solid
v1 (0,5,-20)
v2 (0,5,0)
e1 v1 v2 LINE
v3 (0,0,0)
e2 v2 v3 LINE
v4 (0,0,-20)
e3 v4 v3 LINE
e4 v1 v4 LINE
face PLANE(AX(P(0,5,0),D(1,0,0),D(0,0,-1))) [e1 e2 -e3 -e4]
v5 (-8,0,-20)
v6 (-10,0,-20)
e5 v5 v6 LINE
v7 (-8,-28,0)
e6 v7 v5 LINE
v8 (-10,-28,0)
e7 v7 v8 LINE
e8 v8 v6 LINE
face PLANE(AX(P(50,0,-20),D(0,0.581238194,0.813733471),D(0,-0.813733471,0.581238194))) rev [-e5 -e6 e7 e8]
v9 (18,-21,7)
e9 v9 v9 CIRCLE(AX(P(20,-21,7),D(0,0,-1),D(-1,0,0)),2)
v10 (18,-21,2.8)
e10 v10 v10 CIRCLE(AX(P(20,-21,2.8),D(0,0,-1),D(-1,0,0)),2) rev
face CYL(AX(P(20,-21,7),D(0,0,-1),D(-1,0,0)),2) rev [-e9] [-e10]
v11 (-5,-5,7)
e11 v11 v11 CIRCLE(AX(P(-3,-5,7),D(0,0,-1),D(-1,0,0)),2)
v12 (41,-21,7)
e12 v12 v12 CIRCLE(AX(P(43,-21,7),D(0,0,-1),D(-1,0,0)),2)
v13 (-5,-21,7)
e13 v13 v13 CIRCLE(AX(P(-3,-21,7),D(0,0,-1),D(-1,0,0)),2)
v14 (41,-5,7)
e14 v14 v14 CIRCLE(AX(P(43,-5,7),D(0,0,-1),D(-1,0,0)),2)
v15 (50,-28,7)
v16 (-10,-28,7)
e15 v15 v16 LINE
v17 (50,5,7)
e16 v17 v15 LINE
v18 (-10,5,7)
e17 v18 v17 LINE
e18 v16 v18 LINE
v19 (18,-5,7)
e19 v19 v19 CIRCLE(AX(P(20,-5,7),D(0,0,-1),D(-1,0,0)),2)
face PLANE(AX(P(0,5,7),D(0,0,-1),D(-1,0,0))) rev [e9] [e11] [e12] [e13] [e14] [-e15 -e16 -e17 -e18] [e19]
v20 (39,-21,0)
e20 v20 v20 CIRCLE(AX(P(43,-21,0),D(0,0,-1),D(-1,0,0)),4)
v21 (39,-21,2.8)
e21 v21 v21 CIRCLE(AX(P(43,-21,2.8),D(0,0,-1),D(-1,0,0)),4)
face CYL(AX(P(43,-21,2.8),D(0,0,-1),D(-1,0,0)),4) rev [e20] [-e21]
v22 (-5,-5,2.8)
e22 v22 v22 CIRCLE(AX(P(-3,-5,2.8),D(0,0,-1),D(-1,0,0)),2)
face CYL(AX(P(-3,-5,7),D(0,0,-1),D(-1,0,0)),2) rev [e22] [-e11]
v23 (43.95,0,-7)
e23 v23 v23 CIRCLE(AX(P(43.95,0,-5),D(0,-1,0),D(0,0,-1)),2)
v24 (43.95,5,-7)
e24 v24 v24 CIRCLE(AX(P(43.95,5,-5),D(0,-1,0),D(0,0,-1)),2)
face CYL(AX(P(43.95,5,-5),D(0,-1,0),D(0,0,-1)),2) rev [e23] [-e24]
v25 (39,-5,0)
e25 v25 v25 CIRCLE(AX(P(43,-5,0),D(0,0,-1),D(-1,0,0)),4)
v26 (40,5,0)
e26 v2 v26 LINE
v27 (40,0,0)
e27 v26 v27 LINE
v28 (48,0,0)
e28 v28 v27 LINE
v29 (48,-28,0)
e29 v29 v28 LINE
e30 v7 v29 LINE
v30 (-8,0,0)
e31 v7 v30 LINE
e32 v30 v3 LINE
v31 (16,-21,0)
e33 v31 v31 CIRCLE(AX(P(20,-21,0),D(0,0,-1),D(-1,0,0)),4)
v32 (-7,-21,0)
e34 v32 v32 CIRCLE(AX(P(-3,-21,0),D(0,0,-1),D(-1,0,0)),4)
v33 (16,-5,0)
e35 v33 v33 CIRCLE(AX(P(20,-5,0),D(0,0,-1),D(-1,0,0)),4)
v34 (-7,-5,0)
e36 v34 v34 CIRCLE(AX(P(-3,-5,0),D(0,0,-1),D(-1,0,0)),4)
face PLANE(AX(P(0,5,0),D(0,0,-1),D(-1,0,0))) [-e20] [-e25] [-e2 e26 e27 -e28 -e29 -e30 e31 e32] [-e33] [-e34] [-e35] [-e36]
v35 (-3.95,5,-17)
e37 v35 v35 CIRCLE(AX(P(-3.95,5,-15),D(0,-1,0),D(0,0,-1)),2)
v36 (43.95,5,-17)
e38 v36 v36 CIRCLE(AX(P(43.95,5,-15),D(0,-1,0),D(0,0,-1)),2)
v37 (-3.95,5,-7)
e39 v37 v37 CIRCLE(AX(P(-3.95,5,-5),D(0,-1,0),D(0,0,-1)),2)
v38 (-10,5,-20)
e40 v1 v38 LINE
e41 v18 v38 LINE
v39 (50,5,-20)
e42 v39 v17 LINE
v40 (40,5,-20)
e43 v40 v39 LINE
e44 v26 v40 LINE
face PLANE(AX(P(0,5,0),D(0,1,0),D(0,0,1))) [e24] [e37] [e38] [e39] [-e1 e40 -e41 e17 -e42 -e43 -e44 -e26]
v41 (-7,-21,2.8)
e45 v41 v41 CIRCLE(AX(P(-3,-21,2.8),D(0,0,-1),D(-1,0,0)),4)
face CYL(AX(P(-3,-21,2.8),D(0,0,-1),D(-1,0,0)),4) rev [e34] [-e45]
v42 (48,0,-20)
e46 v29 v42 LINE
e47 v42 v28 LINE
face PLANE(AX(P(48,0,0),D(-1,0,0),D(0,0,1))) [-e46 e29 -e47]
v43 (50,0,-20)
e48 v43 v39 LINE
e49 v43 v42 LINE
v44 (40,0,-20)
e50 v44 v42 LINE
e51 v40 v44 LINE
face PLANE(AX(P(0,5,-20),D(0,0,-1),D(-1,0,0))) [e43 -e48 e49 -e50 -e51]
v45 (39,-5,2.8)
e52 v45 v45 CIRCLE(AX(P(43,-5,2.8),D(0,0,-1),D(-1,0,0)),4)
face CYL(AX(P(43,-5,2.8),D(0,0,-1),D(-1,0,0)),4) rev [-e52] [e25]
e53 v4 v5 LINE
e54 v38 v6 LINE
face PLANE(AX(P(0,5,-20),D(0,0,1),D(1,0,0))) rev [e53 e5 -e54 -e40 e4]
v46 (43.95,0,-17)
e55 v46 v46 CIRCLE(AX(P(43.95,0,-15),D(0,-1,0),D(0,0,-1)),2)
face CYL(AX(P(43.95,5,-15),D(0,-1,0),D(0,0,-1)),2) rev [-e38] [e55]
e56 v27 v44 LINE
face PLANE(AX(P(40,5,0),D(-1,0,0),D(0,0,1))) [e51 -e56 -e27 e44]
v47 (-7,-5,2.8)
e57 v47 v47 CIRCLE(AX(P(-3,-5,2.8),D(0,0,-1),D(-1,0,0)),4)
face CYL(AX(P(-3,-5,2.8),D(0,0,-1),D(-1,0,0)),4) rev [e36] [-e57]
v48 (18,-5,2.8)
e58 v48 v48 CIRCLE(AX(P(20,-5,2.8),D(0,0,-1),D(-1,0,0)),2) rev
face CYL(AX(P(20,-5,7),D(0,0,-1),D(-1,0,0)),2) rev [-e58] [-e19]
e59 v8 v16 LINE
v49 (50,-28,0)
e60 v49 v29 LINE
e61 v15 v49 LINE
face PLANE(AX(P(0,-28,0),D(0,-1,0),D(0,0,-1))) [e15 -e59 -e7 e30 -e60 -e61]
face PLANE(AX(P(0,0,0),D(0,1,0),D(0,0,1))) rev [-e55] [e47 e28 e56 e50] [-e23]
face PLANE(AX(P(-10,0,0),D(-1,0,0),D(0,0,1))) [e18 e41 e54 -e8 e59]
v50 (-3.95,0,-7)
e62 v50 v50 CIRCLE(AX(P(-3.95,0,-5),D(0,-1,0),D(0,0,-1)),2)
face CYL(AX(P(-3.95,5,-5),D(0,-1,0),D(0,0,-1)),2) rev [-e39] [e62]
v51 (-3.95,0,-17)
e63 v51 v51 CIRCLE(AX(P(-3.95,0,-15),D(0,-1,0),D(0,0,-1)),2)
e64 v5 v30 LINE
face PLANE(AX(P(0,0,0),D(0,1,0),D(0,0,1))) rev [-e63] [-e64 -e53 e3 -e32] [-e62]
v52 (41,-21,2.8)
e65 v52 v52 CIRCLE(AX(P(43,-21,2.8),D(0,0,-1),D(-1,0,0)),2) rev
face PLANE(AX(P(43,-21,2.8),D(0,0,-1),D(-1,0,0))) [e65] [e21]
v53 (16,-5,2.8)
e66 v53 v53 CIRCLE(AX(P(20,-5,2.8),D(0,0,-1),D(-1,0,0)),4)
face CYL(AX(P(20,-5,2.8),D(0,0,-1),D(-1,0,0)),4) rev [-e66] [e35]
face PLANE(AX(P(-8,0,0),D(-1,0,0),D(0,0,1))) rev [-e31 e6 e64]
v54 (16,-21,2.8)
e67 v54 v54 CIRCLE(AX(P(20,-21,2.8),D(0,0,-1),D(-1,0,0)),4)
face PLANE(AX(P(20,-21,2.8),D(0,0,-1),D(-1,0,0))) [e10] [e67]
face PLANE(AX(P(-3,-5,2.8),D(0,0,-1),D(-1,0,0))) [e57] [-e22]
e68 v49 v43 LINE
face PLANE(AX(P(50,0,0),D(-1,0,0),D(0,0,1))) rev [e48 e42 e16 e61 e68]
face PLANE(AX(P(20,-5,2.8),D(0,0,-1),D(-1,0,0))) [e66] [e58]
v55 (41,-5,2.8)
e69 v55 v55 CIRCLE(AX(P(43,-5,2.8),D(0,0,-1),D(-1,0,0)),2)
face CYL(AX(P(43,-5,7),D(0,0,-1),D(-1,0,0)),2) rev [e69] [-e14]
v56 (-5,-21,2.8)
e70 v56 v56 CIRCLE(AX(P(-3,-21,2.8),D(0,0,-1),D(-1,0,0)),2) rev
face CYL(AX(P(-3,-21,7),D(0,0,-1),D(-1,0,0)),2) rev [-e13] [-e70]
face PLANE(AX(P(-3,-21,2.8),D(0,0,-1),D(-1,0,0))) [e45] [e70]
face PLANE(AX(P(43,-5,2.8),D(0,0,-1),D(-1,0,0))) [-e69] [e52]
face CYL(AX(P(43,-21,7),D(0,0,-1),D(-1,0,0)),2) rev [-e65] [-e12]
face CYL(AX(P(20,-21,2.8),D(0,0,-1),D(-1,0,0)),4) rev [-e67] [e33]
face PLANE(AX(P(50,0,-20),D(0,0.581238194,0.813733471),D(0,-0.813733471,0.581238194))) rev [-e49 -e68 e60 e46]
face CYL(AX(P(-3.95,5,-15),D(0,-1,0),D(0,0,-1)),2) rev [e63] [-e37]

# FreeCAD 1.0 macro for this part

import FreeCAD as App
import Part
import Sketcher
from FreeCAD import Vector


def add_polygon(sketch, points):
    """Adds a closed chain of lines whose ends are joined by coincident constraints."""
    first, n = sketch.GeometryCount, len(points)
    for a, b in zip(points, points[1:] + points[:1]):
        sketch.addGeometry(Part.LineSegment(App.Vector(*a, 0), App.Vector(*b, 0)), False)
    for i in range(n):
        sketch.addConstraint(Sketcher.Constraint("Coincident", first + i, 2, first + (i + 1) % n, 1))

doc = App.newDocument("Part")
body = doc.addObject("PartDesign::Body", "Body")

# Sketch on XZ plane
sketch1 = body.newObject("Sketcher::SketchObject", "Sketch")
sketch1.AttachmentSupport = (doc.getObject("XZ_Plane"), [""])
sketch1.MapMode = "FlatFace"
add_polygon(sketch1, [(-8, -20), (-8, 20), (4, 20), (4, 7), (17, 7), (17, 20), (29, 20), (29, 7), (48, 7), (48, -20), (40, -20), (40, 0), (0, 0), (0, -20)])  # lines 0-13
sketch1.addConstraint([
    Sketcher.Constraint("Vertical", 0),
    Sketcher.Constraint("Horizontal", 1),
    Sketcher.Constraint("Vertical", 2),
    Sketcher.Constraint("Horizontal", 3),
    Sketcher.Constraint("Vertical", 4),
    Sketcher.Constraint("Horizontal", 5),
    Sketcher.Constraint("Vertical", 6),
    Sketcher.Constraint("Horizontal", 7),
    Sketcher.Constraint("Vertical", 8),
    Sketcher.Constraint("Horizontal", 9),
    Sketcher.Constraint("Vertical", 10),
    Sketcher.Constraint("Horizontal", 11),
    Sketcher.Constraint("Vertical", 12),
    Sketcher.Constraint("Horizontal", 13),
    Sketcher.Constraint("Coincident", 11, 2, -1, 1),
    Sketcher.Constraint("Horizontal", 1, 2, 4, 2),
    Sketcher.Constraint("Horizontal", 3, 2, 6, 2),
    Sketcher.Constraint("Horizontal", 9, 2, 12, 2),
    Sketcher.Constraint("Equal", 1, 5),
    Sketcher.Constraint("Equal", 9, 13),
    Sketcher.Constraint("DistanceX", 9, 2, 9, 1, 8.0),
    Sketcher.Constraint("DistanceX", 11, 2, 11, 1, 40.0),
    Sketcher.Constraint("DistanceY", 8, 2, 8, 1, 27.0),
    Sketcher.Constraint("DistanceY", 10, 1, 10, 2, 20.0),
    Sketcher.Constraint("DistanceX", 3, 1, 3, 2, 13.1),
    Sketcher.Constraint("DistanceX", 7, 1, 7, 2, 19.4),
    Sketcher.Constraint("DistanceY", 0, 1, 0, 2, 39.66),
])
pad1 = body.newObject("PartDesign::Pad", "Pad")
pad1.Profile = sketch1
pad1.Length = 5
pad1.Reversed = True

# Sketch on XZ plane
sketch2 = body.newObject("Sketcher::SketchObject", "Sketch001")
sketch2.AttachmentSupport = (doc.getObject("XZ_Plane"), [""])
sketch2.MapMode = "FlatFace"
add_polygon(sketch2, [(4, 20), (-8, 20), (-8, 0), (29, 0), (29, 20), (17, 20), (17, 7), (4, 7)])  # lines 0-7
sketch2.addConstraint([
    Sketcher.Constraint("Horizontal", 0),
    Sketcher.Constraint("Vertical", 1),
    Sketcher.Constraint("Horizontal", 2),
    Sketcher.Constraint("Vertical", 3),
    Sketcher.Constraint("Horizontal", 4),
    Sketcher.Constraint("Vertical", 5),
    Sketcher.Constraint("Horizontal", 6),
    Sketcher.Constraint("Vertical", 7),
    Sketcher.Constraint("PointOnObject", 1, 2, -1),
    Sketcher.Constraint("Horizontal", 0, 2, 3, 2),
    Sketcher.Constraint("Equal", 0, 4),
    Sketcher.Constraint("DistanceX", 2, 1, 2, 2, 36.6),
    Sketcher.Constraint("DistanceX", 6, 2, 6, 1, 13.1),
    Sketcher.Constraint("DistanceX", 0, 2, -1, 1, 8.0),
    Sketcher.Constraint("DistanceY", -1, 1, 5, 2, 7.0),
    Sketcher.Constraint("DistanceY", 1, 2, 1, 1, 19.66),
])
pad2 = body.newObject("PartDesign::Pad", "Pad001")
pad2.Profile = sketch2
pad2.Length = 28

# Sketch on XZ plane
sketch3 = body.newObject("Sketcher::SketchObject", "Sketch002")
sketch3.AttachmentSupport = (doc.getObject("XZ_Plane"), [""])
sketch3.MapMode = "FlatFace"
sketch3.AttachmentOffset = App.Placement(Vector(0, 0, 28), App.Rotation())
add_polygon(sketch3, [(-8, 20), (-8, 7), (-2, 7), (-2, 20)])  # lines 0-3
add_polygon(sketch3, [(23, 20), (23, 7), (29, 7), (29, 20)])  # lines 4-7
sketch3.addConstraint([
    Sketcher.Constraint("Vertical", 0),
    Sketcher.Constraint("Horizontal", 1),
    Sketcher.Constraint("Vertical", 2),
    Sketcher.Constraint("Horizontal", 3),
    Sketcher.Constraint("Vertical", 4),
    Sketcher.Constraint("Horizontal", 5),
    Sketcher.Constraint("Vertical", 6),
    Sketcher.Constraint("Horizontal", 7),
    Sketcher.Constraint("Horizontal", 1, 2, 4, 2),
    Sketcher.Constraint("Horizontal", 3, 2, 6, 2),
    Sketcher.Constraint("Equal", 3, 5),
    Sketcher.Constraint("DistanceX", 0, 2, -1, 1, 8.0),
    Sketcher.Constraint("DistanceY", -1, 1, 0, 2, 7.0),
    Sketcher.Constraint("DistanceX", 1, 1, 1, 2, 5.75),
    Sketcher.Constraint("DistanceY", 0, 2, 0, 1, 12.66),
    Sketcher.Constraint("DistanceX", -1, 1, 5, 2, 28.6),
])
pocket1 = body.newObject("PartDesign::Pocket", "Pocket")
pocket1.Profile = sketch3
pocket1.Type = "ThroughAll"

# Sketch on YZ plane
sketch4 = body.newObject("Sketcher::SketchObject", "Sketch003")
sketch4.AttachmentSupport = (doc.getObject("YZ_Plane"), [""])
sketch4.MapMode = "FlatFace"
sketch4.AttachmentOffset = App.Placement(Vector(0, 0, -2.25), App.Rotation())
sketch4.addGeometry([
    Part.Circle(Vector(-2, 13.3, 0), Vector(0, 0, 1), 2),
    Part.Circle(Vector(-21, 13.3, 0), Vector(0, 0, 1), 2),
    Part.Circle(Vector(-11.5, 13.3, 0), Vector(0, 0, 1), 2),
], False)
sketch4.addConstraint([
    Sketcher.Constraint("Equal", 0, 1),
    Sketcher.Constraint("Equal", 1, 2),
    Sketcher.Constraint("Horizontal", 0, 3, 1, 3),
    Sketcher.Constraint("Horizontal", 1, 3, 2, 3),
    Sketcher.Constraint("Diameter", 0, 4.0),
    Sketcher.Constraint("DistanceX", 0, 3, -1, 1, 2.0),
    Sketcher.Constraint("DistanceX", 1, 3, -1, 1, 21.0),
    Sketcher.Constraint("DistanceX", 2, 3, -1, 1, 11.5),
    Sketcher.Constraint("DistanceY", -1, 1, 0, 3, 13.33),
])
pocket2 = body.newObject("PartDesign::Pocket", "Pocket001")
pocket2.Profile = sketch4
pocket2.Type = "ThroughAll"
pocket2.Reversed = True

# Sketch on XZ plane
sketch5 = body.newObject("Sketcher::SketchObject", "Sketch004")
sketch5.AttachmentSupport = (doc.getObject("XZ_Plane"), [""])
sketch5.MapMode = "FlatFace"
sketch5.addGeometry([
    Part.Circle(Vector(44, -5, 0), Vector(0, 0, 1), 2),
    Part.Circle(Vector(44, -15, 0), Vector(0, 0, 1), 2),
    Part.Circle(Vector(-4, -5, 0), Vector(0, 0, 1), 2),
    Part.Circle(Vector(-4, -15, 0), Vector(0, 0, 1), 2),
], False)
sketch5.addConstraint([
    Sketcher.Constraint("Equal", 0, 1),
    Sketcher.Constraint("Equal", 1, 2),
    Sketcher.Constraint("Equal", 2, 3),
    Sketcher.Constraint("Horizontal", 0, 3, 2, 3),
    Sketcher.Constraint("Horizontal", 1, 3, 3, 3),
    Sketcher.Constraint("Vertical", 0, 3, 1, 3),
    Sketcher.Constraint("Vertical", 2, 3, 3, 3),
    Sketcher.Constraint("Diameter", 0, 4.0),
    Sketcher.Constraint("DistanceY", 0, 3, -1, 1, 5.0),
    Sketcher.Constraint("DistanceY", 1, 3, -1, 1, 15.0),
    Sketcher.Constraint("DistanceX", 2, 3, 0, 3, 47.9),
    Sketcher.Constraint("DistanceX", -1, 1, 0, 3, 43.95),
])
pocket3 = body.newObject("PartDesign::Pocket", "Pocket002")
pocket3.Profile = sketch5
pocket3.Type = "ThroughAll"

# Sketch on YZ plane
sketch6 = body.newObject("Sketcher::SketchObject", "Sketch005")
sketch6.AttachmentSupport = (doc.getObject("YZ_Plane"), [""])
sketch6.MapMode = "FlatFace"
sketch6.AttachmentOffset = App.Placement(Vector(0, 0, 28.6), App.Rotation())
add_polygon(sketch6, [(0, 7), (-28, 7), (-28, 0), (0, 0)])  # lines 0-3
sketch6.addConstraint([
    Sketcher.Constraint("Horizontal", 0),
    Sketcher.Constraint("Vertical", 1),
    Sketcher.Constraint("Horizontal", 2),
    Sketcher.Constraint("Vertical", 3),
    Sketcher.Constraint("Coincident", 2, 2, -1, 1),
    Sketcher.Constraint("DistanceX", 0, 2, 0, 1, 28.0),
    Sketcher.Constraint("DistanceY", 1, 2, 1, 1, 7.0),
])
pad3 = body.newObject("PartDesign::Pad", "Pad002")
pad3.Profile = sketch6
pad3.Length = 19.4

# Sketch on YZ plane
sketch7 = body.newObject("Sketcher::SketchObject", "Sketch006")
sketch7.AttachmentSupport = (doc.getObject("YZ_Plane"), [""])
sketch7.MapMode = "FlatFace"
sketch7.AttachmentOffset = App.Placement(Vector(0, 0, 48), App.Rotation())
add_polygon(sketch7, [(5, 7), (-28, 7), (-28, -20), (5, -20)])  # lines 0-3
sketch7.addConstraint([
    Sketcher.Constraint("Horizontal", 0),
    Sketcher.Constraint("Vertical", 1),
    Sketcher.Constraint("Horizontal", 2),
    Sketcher.Constraint("Vertical", 3),
    Sketcher.Constraint("DistanceX", 0, 2, 0, 1, 33.0),
    Sketcher.Constraint("DistanceY", 1, 2, 1, 1, 27.0),
    Sketcher.Constraint("DistanceX", 0, 2, -1, 1, 28.0),
    Sketcher.Constraint("DistanceY", -1, 1, 0, 2, 7.0),
])
pad4 = body.newObject("PartDesign::Pad", "Pad003")
pad4.Profile = sketch7
pad4.Length = 2

# Sketch on YZ plane
sketch8 = body.newObject("Sketcher::SketchObject", "Sketch007")
sketch8.AttachmentSupport = (doc.getObject("YZ_Plane"), [""])
sketch8.MapMode = "FlatFace"
sketch8.AttachmentOffset = App.Placement(Vector(0, 0, -8), App.Rotation())
add_polygon(sketch8, [(5, -20), (-28, -20), (-28, 7), (5, 7)])  # lines 0-3
sketch8.addConstraint([
    Sketcher.Constraint("Horizontal", 0),
    Sketcher.Constraint("Vertical", 1),
    Sketcher.Constraint("Horizontal", 2),
    Sketcher.Constraint("Vertical", 3),
    Sketcher.Constraint("DistanceX", 0, 2, 0, 1, 33.0),
    Sketcher.Constraint("DistanceY", 1, 1, 1, 2, 27.0),
    Sketcher.Constraint("DistanceX", 0, 2, -1, 1, 28.0),
    Sketcher.Constraint("DistanceY", 0, 2, -1, 1, 20.0),
])
pad5 = body.newObject("PartDesign::Pad", "Pad004")
pad5.Profile = sketch8
pad5.Length = 2
pad5.Reversed = True

# Sketch on YZ plane
sketch9 = body.newObject("Sketcher::SketchObject", "Sketch008")
sketch9.AttachmentSupport = (doc.getObject("YZ_Plane"), [""])
sketch9.MapMode = "FlatFace"
sketch9.AttachmentOffset = App.Placement(Vector(0, 0, 48), App.Rotation())
add_polygon(sketch9, [(-28, 0), (0, -20), (-28, -20)])  # lines 0-2
sketch9.addConstraint([
    Sketcher.Constraint("Horizontal", 1),
    Sketcher.Constraint("Vertical", 2),
    Sketcher.Constraint("PointOnObject", 0, 2, -2),
    Sketcher.Constraint("PointOnObject", 2, 2, -1),
    Sketcher.Constraint("DistanceX", 1, 2, 1, 1, 28.0),
    Sketcher.Constraint("DistanceY", 2, 1, 2, 2, 20.0),
])
pocket4 = body.newObject("PartDesign::Pocket", "Pocket003")
pocket4.Profile = sketch9
pocket4.Type = "ThroughAll"
pocket4.Midplane = True

# Sketch on YZ plane
sketch10 = body.newObject("Sketcher::SketchObject", "Sketch009")
sketch10.AttachmentSupport = (doc.getObject("YZ_Plane"), [""])
sketch10.MapMode = "FlatFace"
sketch10.AttachmentOffset = App.Placement(Vector(0, 0, 22.85), App.Rotation())
add_polygon(sketch10, [(5, 20), (-28, 20), (-28, 7), (5, 7)])  # lines 0-3
sketch10.addConstraint([
    Sketcher.Constraint("Horizontal", 0),
    Sketcher.Constraint("Vertical", 1),
    Sketcher.Constraint("Horizontal", 2),
    Sketcher.Constraint("Vertical", 3),
    Sketcher.Constraint("DistanceX", 0, 2, 0, 1, 33.0),
    Sketcher.Constraint("DistanceX", 0, 2, -1, 1, 28.0),
    Sketcher.Constraint("DistanceY", -1, 1, 1, 2, 7.0),
    Sketcher.Constraint("DistanceY", 1, 2, 1, 1, 12.66),
])
pocket5 = body.newObject("PartDesign::Pocket", "Pocket004")
pocket5.Profile = sketch10
pocket5.Type = "ThroughAll"

# Sketch on XY plane
sketch11 = body.newObject("Sketcher::SketchObject", "Sketch010")
sketch11.AttachmentSupport = (doc.getObject("XY_Plane"), [""])
sketch11.MapMode = "FlatFace"
sketch11.addGeometry([
    Part.Circle(Vector(43, -5, 0), Vector(0, 0, 1), 2),  # 0
    Part.Circle(Vector(-3, -5, 0), Vector(0, 0, 1), 2),  # 1
    Part.Circle(Vector(-3, -21, 0), Vector(0, 0, 1), 2),  # 2
    Part.Circle(Vector(43, -21, 0), Vector(0, 0, 1), 2),  # 3
    Part.Circle(Vector(20, -5, 0), Vector(0, 0, 1), 2),  # 4
    Part.Circle(Vector(20, -21, 0), Vector(0, 0, 1), 2),  # 5
], False)
sketch11.addConstraint([
    Sketcher.Constraint("Equal", 0, 1),
    Sketcher.Constraint("Equal", 1, 2),
    Sketcher.Constraint("Equal", 2, 3),
    Sketcher.Constraint("Equal", 3, 4),
    Sketcher.Constraint("Equal", 4, 5),
    Sketcher.Constraint("Horizontal", 0, 3, 1, 3),
    Sketcher.Constraint("Horizontal", 2, 3, 3, 3),
    Sketcher.Constraint("Horizontal", 1, 3, 4, 3),
    Sketcher.Constraint("Horizontal", 3, 3, 5, 3),
    Sketcher.Constraint("Vertical", 1, 3, 2, 3),
    Sketcher.Constraint("Vertical", 0, 3, 3, 3),
    Sketcher.Constraint("Vertical", 4, 3, 5, 3),
    Sketcher.Constraint("Diameter", 0, 4.0),
    Sketcher.Constraint("DistanceX", -1, 1, 0, 3, 43.0),
    Sketcher.Constraint("DistanceY", 0, 3, -1, 1, 5.0),
    Sketcher.Constraint("DistanceX", 1, 3, -1, 1, 3.0),
    Sketcher.Constraint("DistanceY", 2, 3, -1, 1, 21.0),
    Sketcher.Constraint("DistanceX", -1, 1, 4, 3, 20.0),
])
pocket6 = body.newObject("PartDesign::Pocket", "Pocket005")
pocket6.Profile = sketch11
pocket6.Type = "ThroughAll"
pocket6.Reversed = True

# Sketch on XY plane
sketch12 = body.newObject("Sketcher::SketchObject", "Sketch011")
sketch12.AttachmentSupport = (doc.getObject("XY_Plane"), [""])
sketch12.MapMode = "FlatFace"
sketch12.addGeometry([
    Part.Circle(Vector(-3, -5, 0), Vector(0, 0, 1), 4),  # 0
    Part.Circle(Vector(-3, -5, 0), Vector(0, 0, 1), 2),  # 1
    Part.Circle(Vector(43, -5, 0), Vector(0, 0, 1), 4),  # 2
    Part.Circle(Vector(43, -5, 0), Vector(0, 0, 1), 2),  # 3
    Part.Circle(Vector(-3, -21, 0), Vector(0, 0, 1), 4),  # 4
    Part.Circle(Vector(43, -21, 0), Vector(0, 0, 1), 4),  # 5
    Part.Circle(Vector(20, -21, 0), Vector(0, 0, 1), 4),  # 6
    Part.Circle(Vector(20, -5, 0), Vector(0, 0, 1), 4),  # 7
], False)
sketch12.addConstraint([
    Sketcher.Constraint("Coincident", 1, 3, 0, 3),
    Sketcher.Constraint("Coincident", 3, 3, 2, 3),
    Sketcher.Constraint("Equal", 0, 2),
    Sketcher.Constraint("Equal", 1, 3),
    Sketcher.Constraint("Equal", 2, 4),
    Sketcher.Constraint("Equal", 4, 5),
    Sketcher.Constraint("Equal", 5, 6),
    Sketcher.Constraint("Equal", 6, 7),
    Sketcher.Constraint("Horizontal", 1, 3, 2, 3),
    Sketcher.Constraint("Horizontal", 4, 3, 5, 3),
    Sketcher.Constraint("Horizontal", 5, 3, 6, 3),
    Sketcher.Constraint("Horizontal", 3, 3, 7, 3),
    Sketcher.Constraint("Vertical", 1, 3, 4, 3),
    Sketcher.Constraint("Vertical", 3, 3, 5, 3),
    Sketcher.Constraint("Vertical", 6, 3, 7, 3),
    Sketcher.Constraint("Diameter", 0, 8.0),
    Sketcher.Constraint("Diameter", 1, 4.0),
    Sketcher.Constraint("DistanceX", 0, 3, -1, 1, 3.0),
    Sketcher.Constraint("DistanceY", 0, 3, -1, 1, 5.0),
    Sketcher.Constraint("DistanceX", -1, 1, 2, 3, 43.0),
    Sketcher.Constraint("DistanceY", 4, 3, -1, 1, 21.0),
    Sketcher.Constraint("DistanceX", -1, 1, 6, 3, 20.0),
])
pocket7 = body.newObject("PartDesign::Pocket", "Pocket006")
pocket7.Profile = sketch12
pocket7.Length = 2.8
pocket7.Reversed = True

doc.recompute()
